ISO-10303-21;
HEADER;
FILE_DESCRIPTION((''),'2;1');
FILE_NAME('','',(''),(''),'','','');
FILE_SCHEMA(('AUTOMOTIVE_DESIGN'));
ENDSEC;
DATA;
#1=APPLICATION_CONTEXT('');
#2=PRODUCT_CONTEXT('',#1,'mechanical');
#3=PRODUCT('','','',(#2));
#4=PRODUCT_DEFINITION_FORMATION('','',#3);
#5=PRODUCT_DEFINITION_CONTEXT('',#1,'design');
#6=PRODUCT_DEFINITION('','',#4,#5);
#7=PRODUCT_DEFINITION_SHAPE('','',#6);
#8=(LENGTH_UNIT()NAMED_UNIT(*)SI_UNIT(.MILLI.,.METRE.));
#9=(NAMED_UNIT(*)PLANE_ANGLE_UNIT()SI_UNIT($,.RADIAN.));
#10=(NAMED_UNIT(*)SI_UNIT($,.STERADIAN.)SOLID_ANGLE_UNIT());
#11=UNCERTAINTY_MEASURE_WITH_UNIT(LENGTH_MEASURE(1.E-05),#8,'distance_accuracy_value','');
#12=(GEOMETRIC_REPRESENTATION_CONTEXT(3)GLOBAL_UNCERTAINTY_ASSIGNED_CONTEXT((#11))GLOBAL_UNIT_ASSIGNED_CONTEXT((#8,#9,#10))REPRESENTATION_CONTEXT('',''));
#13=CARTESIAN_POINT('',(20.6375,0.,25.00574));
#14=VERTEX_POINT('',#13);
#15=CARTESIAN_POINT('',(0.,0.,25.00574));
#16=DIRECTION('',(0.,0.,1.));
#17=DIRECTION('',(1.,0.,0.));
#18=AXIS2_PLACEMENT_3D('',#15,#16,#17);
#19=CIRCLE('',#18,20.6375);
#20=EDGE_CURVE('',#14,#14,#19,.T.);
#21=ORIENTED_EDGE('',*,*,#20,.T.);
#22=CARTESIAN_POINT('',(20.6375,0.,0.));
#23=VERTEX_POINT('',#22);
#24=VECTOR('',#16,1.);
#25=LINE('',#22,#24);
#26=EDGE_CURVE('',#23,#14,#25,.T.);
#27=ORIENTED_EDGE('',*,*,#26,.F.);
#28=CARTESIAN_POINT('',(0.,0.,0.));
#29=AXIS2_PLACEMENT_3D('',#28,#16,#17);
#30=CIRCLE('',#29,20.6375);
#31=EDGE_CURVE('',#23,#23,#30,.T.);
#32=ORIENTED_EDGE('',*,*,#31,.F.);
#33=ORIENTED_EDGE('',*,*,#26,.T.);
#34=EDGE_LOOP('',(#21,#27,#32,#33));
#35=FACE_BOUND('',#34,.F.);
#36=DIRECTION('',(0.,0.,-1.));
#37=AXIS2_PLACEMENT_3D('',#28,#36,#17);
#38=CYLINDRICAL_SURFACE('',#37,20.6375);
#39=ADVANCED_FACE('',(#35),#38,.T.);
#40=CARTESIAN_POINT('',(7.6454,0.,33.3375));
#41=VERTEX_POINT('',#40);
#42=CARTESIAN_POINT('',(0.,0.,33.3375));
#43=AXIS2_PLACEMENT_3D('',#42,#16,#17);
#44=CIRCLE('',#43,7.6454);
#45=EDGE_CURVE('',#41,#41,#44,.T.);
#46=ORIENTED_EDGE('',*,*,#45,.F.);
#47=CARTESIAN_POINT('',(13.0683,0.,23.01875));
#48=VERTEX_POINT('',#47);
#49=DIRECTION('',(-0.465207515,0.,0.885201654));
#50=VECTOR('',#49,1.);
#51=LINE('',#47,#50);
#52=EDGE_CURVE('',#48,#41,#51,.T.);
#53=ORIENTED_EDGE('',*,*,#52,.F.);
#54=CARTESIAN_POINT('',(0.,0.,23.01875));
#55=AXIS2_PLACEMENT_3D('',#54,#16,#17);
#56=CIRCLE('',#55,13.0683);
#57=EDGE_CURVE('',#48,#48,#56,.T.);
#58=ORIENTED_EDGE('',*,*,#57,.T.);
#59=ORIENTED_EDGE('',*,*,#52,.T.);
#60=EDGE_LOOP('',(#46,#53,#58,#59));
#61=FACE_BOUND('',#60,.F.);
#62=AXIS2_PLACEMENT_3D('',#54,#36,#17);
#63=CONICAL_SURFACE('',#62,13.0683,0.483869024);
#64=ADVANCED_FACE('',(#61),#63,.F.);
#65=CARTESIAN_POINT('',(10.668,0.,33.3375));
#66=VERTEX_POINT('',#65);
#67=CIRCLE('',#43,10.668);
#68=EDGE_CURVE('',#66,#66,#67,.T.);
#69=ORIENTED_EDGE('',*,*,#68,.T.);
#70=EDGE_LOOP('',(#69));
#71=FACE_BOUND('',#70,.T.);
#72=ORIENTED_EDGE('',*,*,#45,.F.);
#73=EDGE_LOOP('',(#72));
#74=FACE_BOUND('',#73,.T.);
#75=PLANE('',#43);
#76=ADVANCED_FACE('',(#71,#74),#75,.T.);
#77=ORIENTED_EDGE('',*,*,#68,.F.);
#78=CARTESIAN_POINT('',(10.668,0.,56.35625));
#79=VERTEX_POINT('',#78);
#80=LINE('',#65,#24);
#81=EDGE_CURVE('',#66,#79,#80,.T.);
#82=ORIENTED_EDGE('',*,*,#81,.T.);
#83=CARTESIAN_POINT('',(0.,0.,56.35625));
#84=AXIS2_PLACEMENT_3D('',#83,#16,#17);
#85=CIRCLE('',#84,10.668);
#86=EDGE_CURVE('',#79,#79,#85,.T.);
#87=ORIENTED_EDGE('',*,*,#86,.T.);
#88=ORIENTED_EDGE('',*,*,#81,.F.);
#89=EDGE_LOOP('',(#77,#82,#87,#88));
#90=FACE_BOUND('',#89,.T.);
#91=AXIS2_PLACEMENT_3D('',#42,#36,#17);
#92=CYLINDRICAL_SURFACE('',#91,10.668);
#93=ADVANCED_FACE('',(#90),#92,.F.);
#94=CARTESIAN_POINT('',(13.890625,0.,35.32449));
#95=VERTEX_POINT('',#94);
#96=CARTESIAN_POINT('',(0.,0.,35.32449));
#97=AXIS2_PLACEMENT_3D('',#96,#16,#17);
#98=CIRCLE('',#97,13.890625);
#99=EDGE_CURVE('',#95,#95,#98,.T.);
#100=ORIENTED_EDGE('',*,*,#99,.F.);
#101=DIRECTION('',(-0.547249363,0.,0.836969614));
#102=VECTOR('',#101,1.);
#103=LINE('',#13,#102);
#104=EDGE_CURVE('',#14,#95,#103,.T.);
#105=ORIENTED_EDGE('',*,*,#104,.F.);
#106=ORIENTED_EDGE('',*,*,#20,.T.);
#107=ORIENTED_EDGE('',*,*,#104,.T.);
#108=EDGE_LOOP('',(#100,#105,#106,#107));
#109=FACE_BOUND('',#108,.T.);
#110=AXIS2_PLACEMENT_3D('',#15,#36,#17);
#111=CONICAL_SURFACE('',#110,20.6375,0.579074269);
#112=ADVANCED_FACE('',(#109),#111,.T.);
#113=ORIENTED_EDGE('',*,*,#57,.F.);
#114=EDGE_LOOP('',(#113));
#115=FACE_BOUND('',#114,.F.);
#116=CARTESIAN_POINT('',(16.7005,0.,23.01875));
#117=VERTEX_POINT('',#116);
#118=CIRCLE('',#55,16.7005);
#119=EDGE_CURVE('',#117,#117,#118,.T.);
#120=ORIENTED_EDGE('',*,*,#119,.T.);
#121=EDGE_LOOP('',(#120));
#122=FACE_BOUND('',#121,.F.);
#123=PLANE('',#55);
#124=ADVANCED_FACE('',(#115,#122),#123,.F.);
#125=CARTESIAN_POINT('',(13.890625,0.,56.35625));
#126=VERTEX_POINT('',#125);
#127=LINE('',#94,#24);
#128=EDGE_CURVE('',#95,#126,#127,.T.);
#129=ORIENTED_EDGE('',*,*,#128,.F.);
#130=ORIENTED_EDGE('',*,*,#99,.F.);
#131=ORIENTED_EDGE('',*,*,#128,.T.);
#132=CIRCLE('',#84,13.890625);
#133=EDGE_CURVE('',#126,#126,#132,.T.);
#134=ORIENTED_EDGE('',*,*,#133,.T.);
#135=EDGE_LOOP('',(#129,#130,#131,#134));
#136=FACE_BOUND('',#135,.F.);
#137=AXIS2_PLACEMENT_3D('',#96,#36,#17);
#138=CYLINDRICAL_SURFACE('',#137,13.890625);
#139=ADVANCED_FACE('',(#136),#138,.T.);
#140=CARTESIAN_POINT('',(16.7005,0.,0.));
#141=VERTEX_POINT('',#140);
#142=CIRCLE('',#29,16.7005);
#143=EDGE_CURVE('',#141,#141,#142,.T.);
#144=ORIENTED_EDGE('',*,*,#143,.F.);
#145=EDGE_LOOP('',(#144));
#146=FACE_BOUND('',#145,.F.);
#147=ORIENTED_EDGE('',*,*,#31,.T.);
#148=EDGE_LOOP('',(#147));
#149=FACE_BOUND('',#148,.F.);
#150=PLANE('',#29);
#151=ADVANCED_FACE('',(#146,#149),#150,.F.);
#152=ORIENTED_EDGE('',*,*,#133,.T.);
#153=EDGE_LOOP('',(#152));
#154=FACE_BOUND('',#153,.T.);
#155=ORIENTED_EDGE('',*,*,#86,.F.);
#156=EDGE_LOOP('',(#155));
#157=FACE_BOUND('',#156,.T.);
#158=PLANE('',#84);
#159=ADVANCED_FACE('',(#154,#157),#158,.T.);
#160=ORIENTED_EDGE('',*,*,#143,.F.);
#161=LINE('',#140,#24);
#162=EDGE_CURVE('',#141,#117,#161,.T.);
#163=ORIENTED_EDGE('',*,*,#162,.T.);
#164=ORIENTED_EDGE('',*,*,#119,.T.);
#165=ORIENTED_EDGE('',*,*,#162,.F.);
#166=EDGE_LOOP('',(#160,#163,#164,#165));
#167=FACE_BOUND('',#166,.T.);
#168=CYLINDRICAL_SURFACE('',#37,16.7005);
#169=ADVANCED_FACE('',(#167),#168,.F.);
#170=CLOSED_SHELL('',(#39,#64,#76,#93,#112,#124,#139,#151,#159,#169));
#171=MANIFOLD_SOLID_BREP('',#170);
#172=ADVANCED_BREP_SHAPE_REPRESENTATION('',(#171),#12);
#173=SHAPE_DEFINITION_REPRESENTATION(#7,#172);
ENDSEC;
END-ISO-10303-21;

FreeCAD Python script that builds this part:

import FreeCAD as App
import Part
import Sketcher

V = App.Vector
Q = App.Units.Quantity


def add_polygon(sketch, points):
    """Adds a closed chain of lines whose ends are joined by coincident constraints."""
    first, n = sketch.GeometryCount, len(points)
    for a, b in zip(points, points[1:] + points[:1]):
        sketch.addGeometry(Part.LineSegment(App.Vector(*a, 0), App.Vector(*b, 0)), False)
    for i in range(n):
        sketch.addConstraint(Sketcher.Constraint("Coincident", first + i, 2, first + (i + 1) % n, 1))

doc = App.newDocument("Part")
body = doc.addObject("PartDesign::Body", "Body")

sketch1 = body.newObject("Sketcher::SketchObject", "Sketch")
sketch1.AttachmentSupport = (doc.getObject("XZ_Plane"), [""])
sketch1.MapMode = "FlatFace"
add_polygon(sketch1, [(0, 23.01875), (13.0683, 23.01875), (7.6454, 33.3375), (0, 33.3375)])
sketch1.addConstraint(Sketcher.Constraint("Horizontal", 0))
sketch1.addConstraint(Sketcher.Constraint("Horizontal", 2))
sketch1.addConstraint(Sketcher.Constraint("Vertical", 3))
sketch1.addConstraint(Sketcher.Constraint("PointOnObject", 2, 2, -2))
sketch1.addConstraint(Sketcher.Constraint("DistanceX", 2, 2, 2, 1, Q("0.301 in")))
sketch1.addConstraint(Sketcher.Constraint("DistanceY", 3, 2, 3, 1, Q("0.40625 in")))
sketch1.addConstraint(Sketcher.Constraint("DistanceX", 0, 1, 0, 2, Q("0.5145 in")))
sketch1.addConstraint(Sketcher.Constraint("DistanceY", -1, 1, 0, 2, Q("0.90625 in")))
revolution = body.newObject("PartDesign::Revolution", "Revolution")
revolution.Profile = sketch1
revolution.ReferenceAxis = (sketch1, ["V_Axis"])
revolution.Angle = 360
body2 = doc.addObject("PartDesign::Body", "Body001")

sketch2 = body2.newObject("Sketcher::SketchObject", "Sketch001")
sketch2.AttachmentSupport = (doc.getObject("XY_Plane001"), [""])
sketch2.MapMode = "FlatFace"
sketch2.AttachmentOffset = App.Placement(V(0, 0, 1.3125 * 25.4), App.Rotation())
sketch2.addGeometry(Part.Circle(V(0, 0, 0), V(0, 0, 1), 10.668), False)
sketch2.addConstraint(Sketcher.Constraint("Coincident", 0, 3, -1, 1))
sketch2.addConstraint(Sketcher.Constraint("Diameter", 0, Q("0.84 in")))
pad1 = body2.newObject("PartDesign::Pad", "Pad")
pad1.Profile = sketch2
pad1.Length = Q("0.90625 in")
body3 = doc.addObject("PartDesign::Body", "Body002")

sketch3 = body3.newObject("Sketcher::SketchObject", "Sketch002")
sketch3.AttachmentSupport = (doc.getObject("XY_Plane002"), [""])
sketch3.MapMode = "FlatFace"
sketch3.addGeometry(Part.Circle(V(0, 0, 0), V(0, 0, 1), 16.7005), False)
sketch3.addConstraint(Sketcher.Constraint("Coincident", 0, 3, -1, 1))
sketch3.addConstraint(Sketcher.Constraint("Diameter", 0, Q("1.315 in")))
pad2 = body3.newObject("PartDesign::Pad", "Pad001")
pad2.Profile = sketch3
pad2.Length = Q("0.90625 in")
doc.recompute()

boolean = body3.newObject("PartDesign::Boolean", "Boolean")
boolean.Type = "Fuse"
boolean.addObjects([body])
doc.recompute()

boolean2 = body3.newObject("PartDesign::Boolean", "Boolean001")
boolean2.Type = "Fuse"
boolean2.addObjects([body2])
body4 = doc.addObject("PartDesign::Body", "Body003")

sketch4 = body4.newObject("Sketcher::SketchObject", "Sketch003")
sketch4.AttachmentSupport = (doc.getObject("XZ_Plane003"), [""])
sketch4.MapMode = "FlatFace"
add_polygon(sketch4, [(0, 25.00574), (20.6375, 25.00574), (13.890625, 35.32449), (0, 35.32449)])
sketch4.addConstraint(Sketcher.Constraint("Horizontal", 0))
sketch4.addConstraint(Sketcher.Constraint("Horizontal", 2))
sketch4.addConstraint(Sketcher.Constraint("Vertical", 3))
sketch4.addConstraint(Sketcher.Constraint("PointOnObject", 2, 2, -2))
sketch4.addConstraint(Sketcher.Constraint("DistanceX", 0, 1, 0, 2, Q("0.8125 in")))
sketch4.addConstraint(Sketcher.Constraint("DistanceX", 2, 2, 2, 1, Q("0.546875 in")))
sketch4.addConstraint(Sketcher.Constraint("DistanceY", 3, 2, 3, 1, Q("0.40625 in")))
sketch4.addConstraint(Sketcher.Constraint("DistanceY", -1, 1, 0, 2, Q("25.00574 mm")))
revolution2 = body4.newObject("PartDesign::Revolution", "Revolution001")
revolution2.Profile = sketch4
revolution2.ReferenceAxis = (sketch4, ["V_Axis"])
revolution2.Angle = 360
body5 = doc.addObject("PartDesign::Body", "Body004")

sketch5 = body5.newObject("Sketcher::SketchObject", "Sketch004")
sketch5.AttachmentSupport = (doc.getObject("XY_Plane004"), [""])
sketch5.MapMode = "FlatFace"
sketch5.AttachmentOffset = App.Placement(V(0, 0, 35.32449), App.Rotation())
sketch5.addGeometry(Part.Circle(V(0, 0, 0), V(0, 0, 1), 13.890625), False)
sketch5.addConstraint(Sketcher.Constraint("Coincident", 0, 3, -1, 1))
sketch5.addConstraint(Sketcher.Constraint("Diameter", 0, Q("1.09375 in")))
pad3 = body5.newObject("PartDesign::Pad", "Pad002")
pad3.Profile = sketch5
pad3.Length = 21.03176
body6 = doc.addObject("PartDesign::Body", "Body005")

sketch6 = body6.newObject("Sketcher::SketchObject", "Sketch005")
sketch6.AttachmentSupport = (doc.getObject("XY_Plane005"), [""])
sketch6.MapMode = "FlatFace"
sketch6.addGeometry(Part.Circle(V(0, 0, 0), V(0, 0, 1), 20.6375), False)
sketch6.addConstraint(Sketcher.Constraint("Coincident", 0, 3, -1, 1))
sketch6.addConstraint(Sketcher.Constraint("Diameter", 0, Q("1.625 in")))
pad4 = body6.newObject("PartDesign::Pad", "Pad003")
pad4.Profile = sketch6
pad4.Length = 25.00574
doc.recompute()

boolean3 = body6.newObject("PartDesign::Boolean", "Boolean002")
boolean3.Type = "Fuse"
boolean3.addObjects([body4])
doc.recompute()

boolean4 = body6.newObject("PartDesign::Boolean", "Boolean003")
boolean4.Type = "Fuse"
boolean4.addObjects([body5])
doc.recompute()

boolean5 = body6.newObject("PartDesign::Boolean", "Boolean004")
boolean5.Type = "Cut"
boolean5.addObjects([body3])

doc.recompute()
